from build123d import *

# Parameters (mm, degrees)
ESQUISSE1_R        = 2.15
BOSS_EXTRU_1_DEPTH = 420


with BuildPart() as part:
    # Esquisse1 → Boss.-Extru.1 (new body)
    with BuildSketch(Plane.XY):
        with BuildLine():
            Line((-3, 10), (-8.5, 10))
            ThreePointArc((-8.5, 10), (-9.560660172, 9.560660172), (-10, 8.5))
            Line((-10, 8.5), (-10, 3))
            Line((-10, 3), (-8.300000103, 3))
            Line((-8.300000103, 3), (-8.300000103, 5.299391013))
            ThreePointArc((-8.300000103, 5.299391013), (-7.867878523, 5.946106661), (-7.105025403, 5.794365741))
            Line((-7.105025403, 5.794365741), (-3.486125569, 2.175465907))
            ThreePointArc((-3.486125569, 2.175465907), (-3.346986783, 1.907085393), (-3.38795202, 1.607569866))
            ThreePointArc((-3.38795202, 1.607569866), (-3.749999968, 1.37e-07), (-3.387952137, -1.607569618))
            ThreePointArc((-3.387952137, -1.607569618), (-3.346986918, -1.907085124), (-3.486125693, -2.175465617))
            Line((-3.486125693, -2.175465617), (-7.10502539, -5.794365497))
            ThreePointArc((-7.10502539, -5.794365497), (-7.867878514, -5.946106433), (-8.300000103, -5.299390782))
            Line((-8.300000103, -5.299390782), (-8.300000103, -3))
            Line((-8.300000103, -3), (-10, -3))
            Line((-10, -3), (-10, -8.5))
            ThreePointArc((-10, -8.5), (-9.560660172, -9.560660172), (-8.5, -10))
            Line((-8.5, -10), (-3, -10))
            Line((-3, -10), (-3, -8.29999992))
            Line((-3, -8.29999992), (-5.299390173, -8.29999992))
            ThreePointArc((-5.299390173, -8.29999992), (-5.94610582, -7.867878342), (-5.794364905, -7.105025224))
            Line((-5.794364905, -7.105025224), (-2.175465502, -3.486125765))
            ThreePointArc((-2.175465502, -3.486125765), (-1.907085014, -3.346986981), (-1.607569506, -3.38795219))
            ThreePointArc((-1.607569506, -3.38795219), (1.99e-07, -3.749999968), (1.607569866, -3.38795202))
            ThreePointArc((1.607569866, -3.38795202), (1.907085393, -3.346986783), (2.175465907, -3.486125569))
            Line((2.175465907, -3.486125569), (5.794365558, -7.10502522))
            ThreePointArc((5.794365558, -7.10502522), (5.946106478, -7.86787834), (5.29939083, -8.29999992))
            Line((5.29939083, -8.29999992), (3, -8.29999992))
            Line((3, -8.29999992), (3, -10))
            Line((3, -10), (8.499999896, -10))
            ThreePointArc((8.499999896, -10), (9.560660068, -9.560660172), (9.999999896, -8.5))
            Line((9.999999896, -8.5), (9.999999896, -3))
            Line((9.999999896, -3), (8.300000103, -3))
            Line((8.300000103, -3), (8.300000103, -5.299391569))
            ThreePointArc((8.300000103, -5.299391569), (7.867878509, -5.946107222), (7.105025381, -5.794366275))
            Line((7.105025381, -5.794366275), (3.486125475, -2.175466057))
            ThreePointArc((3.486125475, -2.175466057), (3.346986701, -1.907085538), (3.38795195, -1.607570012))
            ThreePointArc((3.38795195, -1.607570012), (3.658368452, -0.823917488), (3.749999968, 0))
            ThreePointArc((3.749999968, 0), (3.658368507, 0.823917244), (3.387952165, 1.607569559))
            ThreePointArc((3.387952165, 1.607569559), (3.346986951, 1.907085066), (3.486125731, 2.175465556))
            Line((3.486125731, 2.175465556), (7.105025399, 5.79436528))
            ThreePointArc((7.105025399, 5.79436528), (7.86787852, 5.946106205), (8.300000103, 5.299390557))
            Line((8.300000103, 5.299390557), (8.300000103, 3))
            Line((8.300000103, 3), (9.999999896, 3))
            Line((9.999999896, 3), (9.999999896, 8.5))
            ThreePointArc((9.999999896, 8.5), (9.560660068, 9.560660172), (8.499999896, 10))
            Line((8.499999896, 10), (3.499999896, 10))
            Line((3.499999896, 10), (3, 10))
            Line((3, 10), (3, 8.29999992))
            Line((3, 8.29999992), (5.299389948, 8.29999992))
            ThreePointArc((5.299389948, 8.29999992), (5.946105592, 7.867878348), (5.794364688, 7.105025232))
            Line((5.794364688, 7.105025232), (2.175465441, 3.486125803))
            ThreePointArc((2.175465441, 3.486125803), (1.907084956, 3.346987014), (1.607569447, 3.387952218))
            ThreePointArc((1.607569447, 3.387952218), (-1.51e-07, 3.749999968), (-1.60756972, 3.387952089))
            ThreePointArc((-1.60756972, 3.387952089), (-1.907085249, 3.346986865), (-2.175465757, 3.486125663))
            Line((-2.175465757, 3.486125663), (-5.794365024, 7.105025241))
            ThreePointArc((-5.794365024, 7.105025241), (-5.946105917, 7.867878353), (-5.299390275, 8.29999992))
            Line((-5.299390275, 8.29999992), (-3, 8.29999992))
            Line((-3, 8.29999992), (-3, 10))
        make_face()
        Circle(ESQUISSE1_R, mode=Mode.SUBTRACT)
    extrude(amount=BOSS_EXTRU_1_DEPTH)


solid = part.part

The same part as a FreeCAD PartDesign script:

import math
import FreeCAD as App
import Part
import Sketcher
from FreeCAD import Vector

doc = App.newDocument("Part")
body = doc.addObject("PartDesign::Body", "Body")

# Sketch on XY plane
sketch1 = body.newObject("Sketcher::SketchObject", "Sketch")
sketch1.AttachmentSupport = (doc.getObject("XY_Plane"), [""])
sketch1.MapMode = "FlatFace"
sketch1.addGeometry(Part.LineSegment(Vector(-3, 10, 0), Vector(-8.5, 10, 0)), False)
sketch1.addGeometry(Part.ArcOfCircle(Part.Circle(Vector(-8.5, 8.5, 0), Vector(0, 0, 1), 1.5), math.radians(90), math.radians(180)), False)
sketch1.addGeometry(Part.LineSegment(Vector(-10, 8.5, 0), Vector(-10, 3, 0)), False)
sketch1.addGeometry(Part.LineSegment(Vector(-10, 3, 0), Vector(-8.3, 3, 0)), False)
sketch1.addGeometry(Part.LineSegment(Vector(-8.3, 3, 0), Vector(-8.3, 5.3, 0)), False)
sketch1.addGeometry(Part.ArcOfCircle(Part.Circle(Vector(-7.6, 5.3, 0), Vector(0, 0, 1), 0.7), math.radians(45), math.radians(180)), False)
sketch1.addGeometry(Part.LineSegment(Vector(-7.11, 5.79, 0), Vector(-3.49, 2.18, 0)), False)
sketch1.addGeometry(Part.ArcOfCircle(Part.Circle(Vector(-3.84, 1.82, 0), Vector(0, 0, 1), 0.5), math.radians(-25), math.radians(45)), False)
sketch1.addGeometry(Part.ArcOfCircle(Part.Circle(Vector(0, 0, 0), Vector(0, 0, 1), 3.75), math.radians(155), math.radians(205)), False)
sketch1.addGeometry(Part.ArcOfCircle(Part.Circle(Vector(-3.84, -1.82, 0), Vector(0, 0, 1), 0.5), math.radians(-45), math.radians(25)), False)
sketch1.addGeometry(Part.LineSegment(Vector(-3.49, -2.18, 0), Vector(-7.11, -5.79, 0)), False)
sketch1.addGeometry(Part.ArcOfCircle(Part.Circle(Vector(-7.6, -5.3, 0), Vector(0, 0, 1), 0.7), math.radians(180), math.radians(315)), False)
sketch1.addGeometry(Part.LineSegment(Vector(-8.3, -5.3, 0), Vector(-8.3, -3, 0)), False)
sketch1.addGeometry(Part.LineSegment(Vector(-8.3, -3, 0), Vector(-10, -3, 0)), False)
sketch1.addGeometry(Part.LineSegment(Vector(-10, -3, 0), Vector(-10, -8.5, 0)), False)
sketch1.addGeometry(Part.ArcOfCircle(Part.Circle(Vector(-8.5, -8.5, 0), Vector(0, 0, 1), 1.5), math.radians(180), math.radians(270)), False)
sketch1.addGeometry(Part.LineSegment(Vector(-8.5, -10, 0), Vector(-3, -10, 0)), False)
sketch1.addGeometry(Part.LineSegment(Vector(-3, -10, 0), Vector(-3, -8.3, 0)), False)
sketch1.addGeometry(Part.LineSegment(Vector(-3, -8.3, 0), Vector(-5.3, -8.3, 0)), False)
sketch1.addGeometry(Part.ArcOfCircle(Part.Circle(Vector(-5.3, -7.6, 0), Vector(0, 0, 1), 0.7), math.radians(135), math.radians(270)), False)
sketch1.addGeometry(Part.LineSegment(Vector(-5.79, -7.11, 0), Vector(-2.18, -3.49, 0)), False)
sketch1.addGeometry(Part.ArcOfCircle(Part.Circle(Vector(-1.82, -3.84, 0), Vector(0, 0, 1), 0.5), math.radians(65), math.radians(135)), False)
sketch1.addGeometry(Part.ArcOfCircle(Part.Circle(Vector(0, 0, 0), Vector(0, 0, 1), 3.75), math.radians(-115), math.radians(-65)), False)
sketch1.addGeometry(Part.ArcOfCircle(Part.Circle(Vector(1.82, -3.84, 0), Vector(0, 0, 1), 0.5), math.radians(45), math.radians(115)), False)
sketch1.addGeometry(Part.LineSegment(Vector(2.18, -3.49, 0), Vector(5.79, -7.11, 0)), False)
sketch1.addGeometry(Part.ArcOfCircle(Part.Circle(Vector(5.3, -7.6, 0), Vector(0, 0, 1), 0.7), math.radians(-90), math.radians(45)), False)
sketch1.addGeometry(Part.LineSegment(Vector(5.3, -8.3, 0), Vector(3, -8.3, 0)), False)
sketch1.addGeometry(Part.LineSegment(Vector(3, -8.3, 0), Vector(3, -10, 0)), False)
sketch1.addGeometry(Part.LineSegment(Vector(3, -10, 0), Vector(8.5, -10, 0)), False)
sketch1.addGeometry(Part.ArcOfCircle(Part.Circle(Vector(8.5, -8.5, 0), Vector(0, 0, 1), 1.5), math.radians(-90), math.radians(0)), False)
sketch1.addGeometry(Part.LineSegment(Vector(10, -8.5, 0), Vector(10, -3, 0)), False)
sketch1.addGeometry(Part.LineSegment(Vector(10, -3, 0), Vector(8.3, -3, 0)), False)
sketch1.addGeometry(Part.LineSegment(Vector(8.3, -3, 0), Vector(8.3, -5.3, 0)), False)
sketch1.addGeometry(Part.ArcOfCircle(Part.Circle(Vector(7.6, -5.3, 0), Vector(0, 0, 1), 0.7), math.radians(-135), math.radians(0)), False)
sketch1.addGeometry(Part.LineSegment(Vector(7.11, -5.79, 0), Vector(3.49, -2.18, 0)), False)
sketch1.addGeometry(Part.ArcOfCircle(Part.Circle(Vector(3.84, -1.82, 0), Vector(0, 0, 1), 0.5), math.radians(155), math.radians(225)), False)
sketch1.addGeometry(Part.ArcOfCircle(Part.Circle(Vector(0, 0, 0), Vector(0, 0, 1), 3.75), math.radians(-25), math.radians(0)), False)
sketch1.addGeometry(Part.ArcOfCircle(Part.Circle(Vector(0, 0, 0), Vector(0, 0, 1), 3.75), math.radians(0), math.radians(25)), False)
sketch1.addGeometry(Part.ArcOfCircle(Part.Circle(Vector(3.84, 1.82, 0), Vector(0, 0, 1), 0.5), math.radians(135), math.radians(205)), False)
sketch1.addGeometry(Part.LineSegment(Vector(3.49, 2.18, 0), Vector(7.11, 5.79, 0)), False)
sketch1.addGeometry(Part.ArcOfCircle(Part.Circle(Vector(7.6, 5.3, 0), Vector(0, 0, 1), 0.7), math.radians(0), math.radians(135)), False)
sketch1.addGeometry(Part.LineSegment(Vector(8.3, 5.3, 0), Vector(8.3, 3, 0)), False)
sketch1.addGeometry(Part.LineSegment(Vector(8.3, 3, 0), Vector(10, 3, 0)), False)
sketch1.addGeometry(Part.LineSegment(Vector(10, 3, 0), Vector(10, 8.5, 0)), False)
sketch1.addGeometry(Part.ArcOfCircle(Part.Circle(Vector(8.5, 8.5, 0), Vector(0, 0, 1), 1.5), math.radians(0), math.radians(90)), False)
sketch1.addGeometry(Part.LineSegment(Vector(8.5, 10, 0), Vector(3, 10, 0)), False)
sketch1.addGeometry(Part.LineSegment(Vector(3, 10, 0), Vector(3, 8.3, 0)), False)
sketch1.addGeometry(Part.LineSegment(Vector(3, 8.3, 0), Vector(5.3, 8.3, 0)), False)
sketch1.addGeometry(Part.ArcOfCircle(Part.Circle(Vector(5.3, 7.6, 0), Vector(0, 0, 1), 0.7), math.radians(-45), math.radians(90)), False)
sketch1.addGeometry(Part.LineSegment(Vector(5.79, 7.11, 0), Vector(2.18, 3.49, 0)), False)
sketch1.addGeometry(Part.ArcOfCircle(Part.Circle(Vector(1.82, 3.84, 0), Vector(0, 0, 1), 0.5), math.radians(-115), math.radians(-45)), False)
sketch1.addGeometry(Part.ArcOfCircle(Part.Circle(Vector(0, 0, 0), Vector(0, 0, 1), 3.75), math.radians(65), math.radians(115)), False)
sketch1.addGeometry(Part.ArcOfCircle(Part.Circle(Vector(-1.82, 3.84, 0), Vector(0, 0, 1), 0.5), math.radians(-135), math.radians(-65)), False)
sketch1.addGeometry(Part.LineSegment(Vector(-2.18, 3.49, 0), Vector(-5.79, 7.11, 0)), False)
sketch1.addGeometry(Part.ArcOfCircle(Part.Circle(Vector(-5.3, 7.6, 0), Vector(0, 0, 1), 0.7), math.radians(90), math.radians(225)), False)
sketch1.addGeometry(Part.LineSegment(Vector(-5.3, 8.3, 0), Vector(-3, 8.3, 0)), False)
sketch1.addGeometry(Part.LineSegment(Vector(-3, 8.3, 0), Vector(-3, 10, 0)), False)
sketch1.addGeometry(Part.Circle(Vector(0, 0, 0), Vector(0, 0, 1), 2.15), False)
sketch1.addConstraint(Sketcher.Constraint("Tangent", 0, 2, 1, 1))
sketch1.addConstraint(Sketcher.Constraint("Tangent", 1, 2, 2, 1))
sketch1.addConstraint(Sketcher.Constraint("Coincident", 2, 2, 3, 1))
sketch1.addConstraint(Sketcher.Constraint("Coincident", 3, 2, 4, 1))
sketch1.addConstraint(Sketcher.Constraint("Tangent", 4, 2, 5, 2))
sketch1.addConstraint(Sketcher.Constraint("Tangent", 5, 1, 6, 1))
sketch1.addConstraint(Sketcher.Constraint("Tangent", 6, 2, 7, 2))
sketch1.addConstraint(Sketcher.Constraint("Tangent", 7, 1, 8, 1))
sketch1.addConstraint(Sketcher.Constraint("Tangent", 8, 2, 9, 2))
sketch1.addConstraint(Sketcher.Constraint("Tangent", 9, 1, 10, 1))
sketch1.addConstraint(Sketcher.Constraint("Tangent", 10, 2, 11, 2))
sketch1.addConstraint(Sketcher.Constraint("Tangent", 11, 1, 12, 1))
sketch1.addConstraint(Sketcher.Constraint("Coincident", 12, 2, 13, 1))
sketch1.addConstraint(Sketcher.Constraint("Coincident", 13, 2, 14, 1))
sketch1.addConstraint(Sketcher.Constraint("Tangent", 14, 2, 15, 1))
sketch1.addConstraint(Sketcher.Constraint("Tangent", 15, 2, 16, 1))
sketch1.addConstraint(Sketcher.Constraint("Coincident", 16, 2, 17, 1))
sketch1.addConstraint(Sketcher.Constraint("Coincident", 17, 2, 18, 1))
sketch1.addConstraint(Sketcher.Constraint("Tangent", 18, 2, 19, 2))
sketch1.addConstraint(Sketcher.Constraint("Tangent", 19, 1, 20, 1))
sketch1.addConstraint(Sketcher.Constraint("Tangent", 20, 2, 21, 2))
sketch1.addConstraint(Sketcher.Constraint("Tangent", 21, 1, 22, 1))
sketch1.addConstraint(Sketcher.Constraint("Tangent", 22, 2, 23, 2))
sketch1.addConstraint(Sketcher.Constraint("Tangent", 23, 1, 24, 1))
sketch1.addConstraint(Sketcher.Constraint("Tangent", 24, 2, 25, 2))
sketch1.addConstraint(Sketcher.Constraint("Tangent", 25, 1, 26, 1))
sketch1.addConstraint(Sketcher.Constraint("Coincident", 26, 2, 27, 1))
sketch1.addConstraint(Sketcher.Constraint("Coincident", 27, 2, 28, 1))
sketch1.addConstraint(Sketcher.Constraint("Tangent", 28, 2, 29, 1))
sketch1.addConstraint(Sketcher.Constraint("Tangent", 29, 2, 30, 1))
sketch1.addConstraint(Sketcher.Constraint("Coincident", 30, 2, 31, 1))
sketch1.addConstraint(Sketcher.Constraint("Coincident", 31, 2, 32, 1))
sketch1.addConstraint(Sketcher.Constraint("Tangent", 32, 2, 33, 2))
sketch1.addConstraint(Sketcher.Constraint("Tangent", 33, 1, 34, 1))
sketch1.addConstraint(Sketcher.Constraint("Tangent", 34, 2, 35, 2))
sketch1.addConstraint(Sketcher.Constraint("Tangent", 35, 1, 36, 1))
sketch1.addConstraint(Sketcher.Constraint("Tangent", 36, 2, 37, 1))
sketch1.addConstraint(Sketcher.Constraint("Tangent", 37, 2, 38, 2))
sketch1.addConstraint(Sketcher.Constraint("Tangent", 38, 1, 39, 1))
sketch1.addConstraint(Sketcher.Constraint("Tangent", 39, 2, 40, 2))
sketch1.addConstraint(Sketcher.Constraint("Tangent", 40, 1, 41, 1))
sketch1.addConstraint(Sketcher.Constraint("Coincident", 41, 2, 42, 1))
sketch1.addConstraint(Sketcher.Constraint("Coincident", 42, 2, 43, 1))
sketch1.addConstraint(Sketcher.Constraint("Tangent", 43, 2, 44, 1))
sketch1.addConstraint(Sketcher.Constraint("Tangent", 44, 2, 45, 1))
sketch1.addConstraint(Sketcher.Constraint("Coincident", 45, 2, 46, 1))
sketch1.addConstraint(Sketcher.Constraint("Coincident", 46, 2, 47, 1))
sketch1.addConstraint(Sketcher.Constraint("Tangent", 47, 2, 48, 2))
sketch1.addConstraint(Sketcher.Constraint("Tangent", 48, 1, 49, 1))
sketch1.addConstraint(Sketcher.Constraint("Tangent", 49, 2, 50, 2))
sketch1.addConstraint(Sketcher.Constraint("Tangent", 50, 1, 51, 1))
sketch1.addConstraint(Sketcher.Constraint("Tangent", 51, 2, 52, 2))
sketch1.addConstraint(Sketcher.Constraint("Tangent", 52, 1, 53, 1))
sketch1.addConstraint(Sketcher.Constraint("Tangent", 53, 2, 54, 2))
sketch1.addConstraint(Sketcher.Constraint("Tangent", 54, 1, 55, 1))
sketch1.addConstraint(Sketcher.Constraint("Coincident", 55, 2, 56, 1))
sketch1.addConstraint(Sketcher.Constraint("Coincident", 56, 2, 0, 1))
sketch1.addConstraint(Sketcher.Constraint("Horizontal", 0))
sketch1.addConstraint(Sketcher.Constraint("Vertical", 2))
sketch1.addConstraint(Sketcher.Constraint("Horizontal", 3))
sketch1.addConstraint(Sketcher.Constraint("Vertical", 4))
sketch1.addConstraint(Sketcher.Constraint("Vertical", 12))
sketch1.addConstraint(Sketcher.Constraint("Horizontal", 13))
sketch1.addConstraint(Sketcher.Constraint("Vertical", 14))
sketch1.addConstraint(Sketcher.Constraint("Horizontal", 16))
sketch1.addConstraint(Sketcher.Constraint("Vertical", 17))
sketch1.addConstraint(Sketcher.Constraint("Horizontal", 18))
sketch1.addConstraint(Sketcher.Constraint("Horizontal", 26))
sketch1.addConstraint(Sketcher.Constraint("Vertical", 27))
sketch1.addConstraint(Sketcher.Constraint("Horizontal", 28))
sketch1.addConstraint(Sketcher.Constraint("Vertical", 30))
sketch1.addConstraint(Sketcher.Constraint("Horizontal", 31))
sketch1.addConstraint(Sketcher.Constraint("Vertical", 32))
sketch1.addConstraint(Sketcher.Constraint("Vertical", 41))
sketch1.addConstraint(Sketcher.Constraint("Horizontal", 42))
sketch1.addConstraint(Sketcher.Constraint("Vertical", 43))
sketch1.addConstraint(Sketcher.Constraint("Horizontal", 45))
sketch1.addConstraint(Sketcher.Constraint("Vertical", 46))
sketch1.addConstraint(Sketcher.Constraint("Horizontal", 47))
sketch1.addConstraint(Sketcher.Constraint("Horizontal", 55))
sketch1.addConstraint(Sketcher.Constraint("Vertical", 56))
sketch1.addConstraint(Sketcher.Constraint("Coincident", 8, 3, -1, 1))
sketch1.addConstraint(Sketcher.Constraint("Coincident", 22, 3, -1, 1))
sketch1.addConstraint(Sketcher.Constraint("Coincident", 36, 3, -1, 1))
sketch1.addConstraint(Sketcher.Constraint("Coincident", 51, 3, -1, 1))
sketch1.addConstraint(Sketcher.Constraint("Coincident", 57, 3, -1, 1))
sketch1.addConstraint(Sketcher.Constraint("Equal", 7, 9))
sketch1.addConstraint(Sketcher.Constraint("Equal", 5, 11))
sketch1.addConstraint(Sketcher.Constraint("Equal", 1, 15))
sketch1.addConstraint(Sketcher.Constraint("Equal", 11, 19))
sketch1.addConstraint(Sketcher.Constraint("Equal", 9, 21))
sketch1.addConstraint(Sketcher.Constraint("Equal", 8, 22))
sketch1.addConstraint(Sketcher.Constraint("Equal", 21, 23))
sketch1.addConstraint(Sketcher.Constraint("Equal", 19, 25))
sketch1.addConstraint(Sketcher.Constraint("Equal", 15, 29))
sketch1.addConstraint(Sketcher.Constraint("Equal", 25, 33))
sketch1.addConstraint(Sketcher.Constraint("Equal", 23, 35))
sketch1.addConstraint(Sketcher.Constraint("Equal", 22, 36))
sketch1.addConstraint(Sketcher.Constraint("Equal", 36, 37))
sketch1.addConstraint(Sketcher.Constraint("Equal", 35, 38))
sketch1.addConstraint(Sketcher.Constraint("Equal", 33, 40))
sketch1.addConstraint(Sketcher.Constraint("Equal", 29, 44))
sketch1.addConstraint(Sketcher.Constraint("Equal", 40, 48))
sketch1.addConstraint(Sketcher.Constraint("Equal", 38, 50))
sketch1.addConstraint(Sketcher.Constraint("Equal", 37, 51))
sketch1.addConstraint(Sketcher.Constraint("Equal", 50, 52))
sketch1.addConstraint(Sketcher.Constraint("Equal", 48, 54))
sketch1.addConstraint(Sketcher.Constraint("Symmetric", 1, 3, 29, 3, -1, 1))
sketch1.addConstraint(Sketcher.Constraint("Symmetric", 5, 3, 33, 3, -1, 1))
sketch1.addConstraint(Sketcher.Constraint("Symmetric", 11, 3, 40, 3, -1, 1))
sketch1.addConstraint(Sketcher.Constraint("Symmetric", 15, 3, 44, 3, -1, 1))
sketch1.addConstraint(Sketcher.Constraint("Symmetric", 19, 3, 48, 3, -1, 1))
sketch1.addConstraint(Sketcher.Constraint("Symmetric", 25, 3, 54, 3, -1, 1))
sketch1.addConstraint(Sketcher.Constraint("Symmetric", 19, 3, 25, 3, -2))
sketch1.addConstraint(Sketcher.Constraint("Symmetric", 15, 3, 29, 3, -2))
sketch1.addConstraint(Sketcher.Constraint("Symmetric", 11, 3, 33, 3, -2))
sketch1.addConstraint(Sketcher.Constraint("PointOnObject", 36, 2, -1))
sketch1.addConstraint(Sketcher.Constraint("Perpendicular", 6, 10))
sketch1.addConstraint(Sketcher.Constraint("Parallel", 10, 20))
sketch1.addConstraint(Sketcher.Constraint("Perpendicular", 20, 24))
sketch1.addConstraint(Sketcher.Constraint("Parallel", 24, 34))
sketch1.addConstraint(Sketcher.Constraint("Perpendicular", 34, 39))
sketch1.addConstraint(Sketcher.Constraint("Parallel", 39, 49))
sketch1.addConstraint(Sketcher.Constraint("Perpendicular", 49, 53))
sketch1.addConstraint(Sketcher.Constraint("Horizontal", 21, 3, 23, 3))
sketch1.addConstraint(Sketcher.Constraint("Horizontal", 13, 2, 30, 2))
sketch1.addConstraint(Sketcher.Constraint("Horizontal", 3, 2, 41, 2))
sketch1.addConstraint(Sketcher.Constraint("Vertical", 27, 2, 45, 2))
sketch1.addConstraint(Sketcher.Constraint("Vertical", 17, 2, 55, 2))
sketch1.addConstraint(Sketcher.Constraint("Equal", 18, 26))
sketch1.addConstraint(Sketcher.Constraint("Equal", 45, 2))
sketch1.addConstraint(Sketcher.Constraint("Equal", 55, 4))
sketch1.addConstraint(Sketcher.Constraint("Equal", 4, 12))
sketch1.addConstraint(Sketcher.Constraint("Equal", 42, 17))
sketch1.addConstraint(Sketcher.Constraint("Equal", 10, 20))
sketch1.addConstraint(Sketcher.Constraint("Diameter", 57, 4.3))
sketch1.addConstraint(Sketcher.Constraint("Radius", 1, 1.5))
sketch1.addConstraint(Sketcher.Constraint("Radius", 5, 0.7))
sketch1.addConstraint(Sketcher.Constraint("Radius", 7, 0.5))
sketch1.addConstraint(Sketcher.Constraint("Radius", 8, 3.75))
sketch1.addConstraint(Sketcher.Constraint("DistanceX", 0, 2, 0, 1, 5.5))
sketch1.addConstraint(Sketcher.Constraint("DistanceX", 3, 1, 3, 2, 1.7))
sketch1.addConstraint(Sketcher.Constraint("DistanceY", -1, 1, 0, 2, 10.0))
sketch1.addConstraint(Sketcher.Constraint("DistanceX", 18, 2, 18, 1, 2.29939))
pad1 = body.newObject("PartDesign::Pad", "Pad")
pad1.Profile = sketch1
pad1.Length = 420

doc.recompute()
